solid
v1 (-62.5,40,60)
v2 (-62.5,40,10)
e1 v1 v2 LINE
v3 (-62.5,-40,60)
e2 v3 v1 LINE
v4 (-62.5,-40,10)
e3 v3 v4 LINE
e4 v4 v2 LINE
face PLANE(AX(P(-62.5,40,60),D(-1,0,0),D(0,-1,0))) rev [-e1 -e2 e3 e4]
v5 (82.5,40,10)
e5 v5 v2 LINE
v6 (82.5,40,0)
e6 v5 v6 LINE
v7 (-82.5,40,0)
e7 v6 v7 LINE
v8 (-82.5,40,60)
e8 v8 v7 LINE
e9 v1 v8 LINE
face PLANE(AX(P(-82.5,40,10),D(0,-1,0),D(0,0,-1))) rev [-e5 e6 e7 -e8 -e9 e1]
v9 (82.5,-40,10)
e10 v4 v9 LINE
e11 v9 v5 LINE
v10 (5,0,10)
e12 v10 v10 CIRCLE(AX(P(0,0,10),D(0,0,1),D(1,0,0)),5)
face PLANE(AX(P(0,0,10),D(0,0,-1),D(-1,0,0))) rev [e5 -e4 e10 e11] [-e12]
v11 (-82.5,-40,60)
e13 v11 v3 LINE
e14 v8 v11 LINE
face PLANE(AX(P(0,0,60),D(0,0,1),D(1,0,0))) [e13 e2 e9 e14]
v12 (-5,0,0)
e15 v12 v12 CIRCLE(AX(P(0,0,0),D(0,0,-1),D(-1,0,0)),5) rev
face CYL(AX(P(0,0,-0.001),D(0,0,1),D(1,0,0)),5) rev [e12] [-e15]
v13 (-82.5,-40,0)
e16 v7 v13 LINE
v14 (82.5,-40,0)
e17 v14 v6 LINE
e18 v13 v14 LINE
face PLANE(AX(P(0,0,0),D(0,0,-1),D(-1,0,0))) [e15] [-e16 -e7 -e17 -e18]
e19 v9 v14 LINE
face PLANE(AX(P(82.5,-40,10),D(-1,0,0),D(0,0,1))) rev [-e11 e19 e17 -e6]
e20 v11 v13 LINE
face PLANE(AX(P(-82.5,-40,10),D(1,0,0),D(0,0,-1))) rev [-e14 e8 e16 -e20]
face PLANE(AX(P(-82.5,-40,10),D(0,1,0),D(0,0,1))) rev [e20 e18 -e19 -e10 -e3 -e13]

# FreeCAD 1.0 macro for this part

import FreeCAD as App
import Part
import Sketcher

V = App.Vector


def add_polygon(sketch, points):
    """Adds a closed chain of lines whose ends are joined by coincident constraints."""
    first, n = sketch.GeometryCount, len(points)
    for a, b in zip(points, points[1:] + points[:1]):
        sketch.addGeometry(Part.LineSegment(App.Vector(*a, 0), App.Vector(*b, 0)), False)
    for i in range(n):
        sketch.addConstraint(Sketcher.Constraint("Coincident", first + i, 2, first + (i + 1) % n, 1))

doc = App.newDocument("Part")
body = doc.addObject("PartDesign::Body", "Body")

sketch1 = doc.addObject("Sketcher::SketchObject", "Sketch")
body.addObject(sketch1)
sketch1.AttachmentSupport = (doc.XY_Plane, [""])
sketch1.MapMode = "FlatFace"
add_polygon(sketch1, [(-82, 40), (-82, -40), (82, -40), (82, 40)])
sketch1.addConstraint([
    Sketcher.Constraint("Vertical", 0),
    Sketcher.Constraint("Horizontal", 1),
    Sketcher.Constraint("Vertical", 2),
    Sketcher.Constraint("Horizontal", 3),
    Sketcher.Constraint("Symmetric", 0, 2, 2, 2, -1, 1),
    Sketcher.Constraint("DistanceX", 1, 1, 1, 2, 165.0),
    Sketcher.Constraint("DistanceY", 0, 2, 0, 1, 80.0),
])
pad1 = doc.addObject("PartDesign::Pad", "Pad")
body.addObject(pad1)
pad1.Profile = sketch1
pad1.Length = 10

sketch2 = doc.addObject("Sketcher::SketchObject", "Sketch001")
body.addObject(sketch2)
sketch2.AttachmentSupport = (doc.XY_Plane, [""])
sketch2.MapMode = "FlatFace"
sketch2.AttachmentOffset = App.Placement(V(0, 0, 10), App.Rotation())
add_polygon(sketch2, [(-82, 40), (-82, -40), (-62, -40), (-62, 40)])
sketch2.addConstraint([
    Sketcher.Constraint("Vertical", 0),
    Sketcher.Constraint("Horizontal", 1),
    Sketcher.Constraint("Vertical", 2),
    Sketcher.Constraint("Horizontal", 3),
    Sketcher.Constraint("DistanceX", 1, 1, 1, 2, 20.0),
    Sketcher.Constraint("DistanceY", 0, 2, 0, 1, 80.0),
    Sketcher.Constraint("DistanceY", 0, 2, -1, 1, 40.0),
    Sketcher.Constraint("DistanceX", 0, 2, -1, 1, 82.5),
])
pad2 = doc.addObject("PartDesign::Pad", "Pad001")
body.addObject(pad2)
pad2.Profile = sketch2
pad2.Length = 50

sketch3 = doc.addObject("Sketcher::SketchObject", "Sketch002")
body.addObject(sketch3)
sketch3.AttachmentSupport = (doc.XY_Plane, [""])
sketch3.MapMode = "FlatFace"
sketch3.AttachmentOffset = App.Placement(V(0, 0, 10), App.Rotation())
sketch3.addGeometry(Part.Circle(V(0, 0, 0), V(0, 0, 1), 5), False)
sketch3.addConstraint([
    Sketcher.Constraint("Coincident", 0, 3, -1, 1),
    Sketcher.Constraint("Diameter", 0, 10.0),
])
pocket1 = doc.addObject("PartDesign::Pocket", "Pocket")
body.addObject(pocket1)
pocket1.Profile = sketch3
pocket1.Type = "UpToFirst"

doc.recompute()
